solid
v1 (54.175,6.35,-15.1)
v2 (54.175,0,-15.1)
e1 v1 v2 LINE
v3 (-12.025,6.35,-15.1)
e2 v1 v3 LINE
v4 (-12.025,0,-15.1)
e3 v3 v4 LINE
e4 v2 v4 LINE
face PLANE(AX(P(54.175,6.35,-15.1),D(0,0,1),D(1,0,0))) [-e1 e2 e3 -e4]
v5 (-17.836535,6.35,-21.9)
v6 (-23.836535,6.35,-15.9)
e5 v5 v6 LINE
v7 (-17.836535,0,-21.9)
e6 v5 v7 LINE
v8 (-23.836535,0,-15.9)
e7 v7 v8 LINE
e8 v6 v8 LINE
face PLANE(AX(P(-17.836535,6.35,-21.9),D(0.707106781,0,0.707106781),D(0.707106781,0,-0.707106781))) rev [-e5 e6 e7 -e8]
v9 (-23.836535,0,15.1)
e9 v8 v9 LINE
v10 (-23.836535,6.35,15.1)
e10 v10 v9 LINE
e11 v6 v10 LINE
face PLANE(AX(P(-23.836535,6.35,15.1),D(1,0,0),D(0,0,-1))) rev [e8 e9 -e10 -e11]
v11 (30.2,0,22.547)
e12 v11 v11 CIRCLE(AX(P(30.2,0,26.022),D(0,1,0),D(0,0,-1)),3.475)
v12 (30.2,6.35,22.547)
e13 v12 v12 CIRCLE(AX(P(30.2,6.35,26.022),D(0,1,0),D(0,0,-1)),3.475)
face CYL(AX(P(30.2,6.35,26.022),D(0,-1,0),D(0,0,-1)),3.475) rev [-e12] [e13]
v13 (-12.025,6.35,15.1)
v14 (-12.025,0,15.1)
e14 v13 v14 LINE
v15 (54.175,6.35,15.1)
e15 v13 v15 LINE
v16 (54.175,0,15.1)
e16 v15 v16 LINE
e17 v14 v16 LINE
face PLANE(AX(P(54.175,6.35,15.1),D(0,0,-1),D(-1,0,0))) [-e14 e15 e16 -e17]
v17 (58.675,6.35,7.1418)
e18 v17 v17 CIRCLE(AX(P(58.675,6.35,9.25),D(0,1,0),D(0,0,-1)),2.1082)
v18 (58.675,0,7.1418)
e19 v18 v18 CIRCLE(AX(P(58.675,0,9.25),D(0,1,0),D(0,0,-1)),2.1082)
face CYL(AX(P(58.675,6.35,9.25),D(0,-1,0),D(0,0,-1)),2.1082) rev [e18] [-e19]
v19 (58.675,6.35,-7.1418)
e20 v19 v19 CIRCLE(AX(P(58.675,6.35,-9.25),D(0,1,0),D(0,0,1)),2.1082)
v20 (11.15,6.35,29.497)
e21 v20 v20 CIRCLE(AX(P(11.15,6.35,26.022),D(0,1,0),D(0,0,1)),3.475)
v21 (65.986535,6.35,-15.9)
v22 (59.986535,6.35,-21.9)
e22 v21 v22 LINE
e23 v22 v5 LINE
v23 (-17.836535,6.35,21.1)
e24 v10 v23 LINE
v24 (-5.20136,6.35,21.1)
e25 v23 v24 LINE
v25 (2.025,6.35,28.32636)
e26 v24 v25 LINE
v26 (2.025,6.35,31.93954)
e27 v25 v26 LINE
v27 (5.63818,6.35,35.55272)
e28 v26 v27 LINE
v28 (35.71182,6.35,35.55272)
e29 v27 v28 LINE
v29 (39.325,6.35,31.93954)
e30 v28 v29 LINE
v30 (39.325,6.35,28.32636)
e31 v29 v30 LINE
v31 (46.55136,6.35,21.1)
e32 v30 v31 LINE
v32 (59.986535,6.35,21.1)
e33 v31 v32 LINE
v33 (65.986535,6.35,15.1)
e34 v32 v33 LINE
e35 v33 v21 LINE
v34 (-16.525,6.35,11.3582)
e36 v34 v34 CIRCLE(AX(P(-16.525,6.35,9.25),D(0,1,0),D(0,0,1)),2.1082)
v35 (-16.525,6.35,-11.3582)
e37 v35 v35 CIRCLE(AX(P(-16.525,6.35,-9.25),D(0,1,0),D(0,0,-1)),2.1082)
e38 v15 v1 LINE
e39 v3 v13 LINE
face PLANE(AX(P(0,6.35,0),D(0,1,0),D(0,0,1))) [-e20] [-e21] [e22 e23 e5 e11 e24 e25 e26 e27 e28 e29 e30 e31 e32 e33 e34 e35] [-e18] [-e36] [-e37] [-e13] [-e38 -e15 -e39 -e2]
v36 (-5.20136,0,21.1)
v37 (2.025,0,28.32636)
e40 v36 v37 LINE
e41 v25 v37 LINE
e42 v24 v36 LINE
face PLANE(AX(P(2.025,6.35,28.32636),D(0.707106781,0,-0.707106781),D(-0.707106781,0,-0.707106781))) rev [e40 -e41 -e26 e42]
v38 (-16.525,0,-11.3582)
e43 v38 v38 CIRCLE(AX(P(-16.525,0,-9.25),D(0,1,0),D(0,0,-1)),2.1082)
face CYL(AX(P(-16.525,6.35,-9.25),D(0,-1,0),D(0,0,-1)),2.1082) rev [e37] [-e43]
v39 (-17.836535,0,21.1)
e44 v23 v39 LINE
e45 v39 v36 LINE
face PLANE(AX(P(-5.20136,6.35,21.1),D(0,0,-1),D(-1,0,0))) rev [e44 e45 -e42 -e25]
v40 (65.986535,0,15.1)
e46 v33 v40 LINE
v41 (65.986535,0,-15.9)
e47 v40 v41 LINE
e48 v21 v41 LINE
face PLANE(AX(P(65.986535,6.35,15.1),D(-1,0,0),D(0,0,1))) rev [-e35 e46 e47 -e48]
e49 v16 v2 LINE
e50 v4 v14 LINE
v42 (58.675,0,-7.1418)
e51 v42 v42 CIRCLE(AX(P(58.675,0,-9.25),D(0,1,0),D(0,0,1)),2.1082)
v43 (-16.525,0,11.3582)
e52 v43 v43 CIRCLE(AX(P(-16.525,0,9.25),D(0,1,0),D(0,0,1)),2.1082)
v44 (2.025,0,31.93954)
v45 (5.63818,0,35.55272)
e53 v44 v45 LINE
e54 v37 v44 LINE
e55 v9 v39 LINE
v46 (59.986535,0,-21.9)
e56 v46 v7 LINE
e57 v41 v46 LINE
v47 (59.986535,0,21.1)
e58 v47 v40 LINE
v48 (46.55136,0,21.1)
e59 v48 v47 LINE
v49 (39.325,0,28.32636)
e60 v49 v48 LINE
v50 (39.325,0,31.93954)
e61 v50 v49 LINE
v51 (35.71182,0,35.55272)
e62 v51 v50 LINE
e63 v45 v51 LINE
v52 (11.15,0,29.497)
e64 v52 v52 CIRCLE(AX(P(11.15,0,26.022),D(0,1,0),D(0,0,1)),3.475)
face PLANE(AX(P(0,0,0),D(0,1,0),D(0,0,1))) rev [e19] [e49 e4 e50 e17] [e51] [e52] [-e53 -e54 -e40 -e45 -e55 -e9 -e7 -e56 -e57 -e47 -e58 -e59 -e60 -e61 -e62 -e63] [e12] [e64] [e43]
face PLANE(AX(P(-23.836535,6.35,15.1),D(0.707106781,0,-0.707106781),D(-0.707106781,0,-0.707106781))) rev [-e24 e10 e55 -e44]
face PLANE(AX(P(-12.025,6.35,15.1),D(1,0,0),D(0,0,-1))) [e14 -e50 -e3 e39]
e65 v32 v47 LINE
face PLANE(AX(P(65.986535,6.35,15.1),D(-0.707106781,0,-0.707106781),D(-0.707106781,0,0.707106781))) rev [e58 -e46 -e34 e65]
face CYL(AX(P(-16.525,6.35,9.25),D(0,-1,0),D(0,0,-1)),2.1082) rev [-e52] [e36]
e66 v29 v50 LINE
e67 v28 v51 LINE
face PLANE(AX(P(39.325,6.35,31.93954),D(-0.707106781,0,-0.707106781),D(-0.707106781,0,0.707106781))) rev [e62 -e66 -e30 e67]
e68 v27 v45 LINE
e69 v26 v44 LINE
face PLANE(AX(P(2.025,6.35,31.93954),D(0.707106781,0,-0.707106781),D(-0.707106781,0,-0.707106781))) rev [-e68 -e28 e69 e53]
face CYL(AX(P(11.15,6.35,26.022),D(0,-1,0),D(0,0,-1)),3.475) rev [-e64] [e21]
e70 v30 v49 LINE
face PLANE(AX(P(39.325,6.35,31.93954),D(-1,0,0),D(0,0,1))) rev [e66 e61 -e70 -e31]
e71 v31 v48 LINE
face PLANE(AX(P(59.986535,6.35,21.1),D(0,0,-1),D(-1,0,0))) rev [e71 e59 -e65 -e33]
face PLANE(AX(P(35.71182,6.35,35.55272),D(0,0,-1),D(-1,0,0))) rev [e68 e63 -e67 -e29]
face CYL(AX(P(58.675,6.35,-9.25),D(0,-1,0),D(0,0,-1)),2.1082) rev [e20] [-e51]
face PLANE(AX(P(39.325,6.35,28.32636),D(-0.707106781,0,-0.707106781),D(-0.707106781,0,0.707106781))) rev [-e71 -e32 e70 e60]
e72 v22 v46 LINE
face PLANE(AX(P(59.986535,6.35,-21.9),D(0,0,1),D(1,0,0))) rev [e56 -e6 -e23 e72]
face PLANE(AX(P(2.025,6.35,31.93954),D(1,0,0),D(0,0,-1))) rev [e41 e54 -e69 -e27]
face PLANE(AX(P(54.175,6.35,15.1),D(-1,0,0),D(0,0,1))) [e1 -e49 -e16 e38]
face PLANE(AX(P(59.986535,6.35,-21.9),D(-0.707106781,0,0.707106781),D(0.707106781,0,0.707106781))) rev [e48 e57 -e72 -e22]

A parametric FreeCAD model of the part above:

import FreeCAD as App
import Part
import Sketcher

V = App.Vector
Q = App.Units.Quantity


def add_polygon(sketch, points):
    """Adds a closed chain of lines whose ends are joined by coincident constraints."""
    first, n = sketch.GeometryCount, len(points)
    for a, b in zip(points, points[1:] + points[:1]):
        sketch.addGeometry(Part.LineSegment(App.Vector(*a, 0), App.Vector(*b, 0)), False)
    for i in range(n):
        sketch.addConstraint(Sketcher.Constraint("Coincident", first + i, 2, first + (i + 1) % n, 1))

doc = App.newDocument("Part")
body = doc.addObject("PartDesign::Body", "Body")

sketch1 = body.newObject("Sketcher::SketchObject", "Sketch")
sketch1.AttachmentSupport = (doc.getObject("XZ_Plane"), [""])
sketch1.MapMode = "FlatFace"
add_polygon(sketch1, [(60, -21.9), (-17.8, -21.9), (-23.8, -15.9), (-23.8, 15.1), (-17.8, 21.1), (-5.2, 21.1), (2, 28.3), (2, 31.9), (5.6, 35.6), (35.7, 35.6), (39.3, 31.9), (39.3, 28.3), (46.6, 21.1), (60, 21.1), (66, 15.1), (66, -15.9)])
sketch1.addGeometry(Part.Circle(V(11.2, 26, 0), V(0, 0, 1), 3.5), False)
sketch1.addGeometry(Part.Circle(V(-16.5, 9.2, 0), V(0, 0, 1), 2.1), False)
sketch1.addGeometry(Part.Circle(V(30.2, 26, 0), V(0, 0, 1), 3.5), False)
sketch1.addGeometry(Part.Circle(V(58.7, 9.2, 0), V(0, 0, 1), 2.1), False)
sketch1.addGeometry(Part.Circle(V(-16.5, -9.2, 0), V(0, 0, 1), 2.1), False)
add_polygon(sketch1, [(54.2, 15.1), (-12, 15.1), (-12, -15.1), (54.2, -15.1)])
sketch1.addGeometry(Part.Circle(V(58.7, -9.2, 0), V(0, 0, 1), 2.1), False)
sketch1.addConstraint([
    Sketcher.Constraint("Horizontal", 0),
    Sketcher.Constraint("Vertical", 2),
    Sketcher.Constraint("Horizontal", 4),
    Sketcher.Constraint("Vertical", 6),
    Sketcher.Constraint("Horizontal", 8),
    Sketcher.Constraint("Vertical", 10),
    Sketcher.Constraint("Horizontal", 12),
    Sketcher.Constraint("Vertical", 14),
    Sketcher.Constraint("Horizontal", 21),
    Sketcher.Constraint("Vertical", 22),
    Sketcher.Constraint("Horizontal", 23),
    Sketcher.Constraint("Vertical", 24),
    Sketcher.Constraint("Equal", 16, 18),
    Sketcher.Constraint("Equal", 17, 19),
    Sketcher.Constraint("Equal", 19, 20),
    Sketcher.Constraint("Equal", 20, 25),
    Sketcher.Constraint("Symmetric", 17, 3, 20, 3, -1),
    Sketcher.Constraint("Symmetric", 19, 3, 25, 3, -1),
    Sketcher.Constraint("Perpendicular", 1, 3),
    Sketcher.Constraint("Parallel", 3, 5),
    Sketcher.Constraint("Parallel", 5, 7),
    Sketcher.Constraint("Perpendicular", 7, 9),
    Sketcher.Constraint("Parallel", 9, 11),
    Sketcher.Constraint("Parallel", 11, 13),
    Sketcher.Constraint("Perpendicular", 13, 15),
    Sketcher.Constraint("Horizontal", 16, 3, 18, 3),
    Sketcher.Constraint("Horizontal", 17, 3, 19, 3),
    Sketcher.Constraint("Horizontal", 6, 2, 9, 2),
    Sketcher.Constraint("Horizontal", 5, 2, 10, 2),
    Sketcher.Constraint("Horizontal", 4, 2, 11, 2),
    Sketcher.Constraint("Horizontal", 2, 2, 13, 2),
    Sketcher.Constraint("Horizontal", 1, 2, 14, 2),
    Sketcher.Constraint("Horizontal", 13, 2, 21, 2),
    Sketcher.Constraint("Vertical", 0, 2, 3, 2),
    Sketcher.Constraint("Vertical", 12, 2, 15, 2),
    Sketcher.Constraint("Diameter", 16, Q("6.95 mm")),
    Sketcher.Constraint("DistanceY", 2, 1, 2, 2, Q("31 mm")),
    Sketcher.Constraint("DistanceX", 21, 2, 21, 1, Q("66.2 mm")),
    Sketcher.Constraint("DistanceY", 22, 2, 22, 1, Q("30.2 mm")),
    Sketcher.Constraint("DistanceX", 1, 2, 0, 2, Q("6 mm")),
    Sketcher.Constraint("Diameter", 17, Q("4.2164 mm")),
    Sketcher.Constraint("DistanceX", -1, 1, 18, 3, Q("30.2 mm")),
    Sketcher.Constraint("DistanceY", 0, 2, -1, 1, Q("21.9 mm")),
    Sketcher.Constraint("DistanceX", 17, 3, 19, 3, Q("75.2 mm")),
    Sketcher.Constraint("DistanceY", 20, 3, 17, 3, Q("18.5 mm")),
    Sketcher.Constraint("DistanceX", 17, 3, 21, 2, Q("4.5 mm")),
    Sketcher.Constraint("DistanceX", -1, 1, 16, 3, Q("11.15 mm")),
    Sketcher.Constraint("DistanceX", 17, 3, 5, 2, Q("18.55 mm")),
    Sketcher.Constraint("DistanceX", 9, 2, 19, 3, Q("19.35 mm")),
    Sketcher.Constraint("DistanceY", -1, 1, 16, 3, Q("26.022 mm")),
    Sketcher.Constraint("DistanceX", 17, 3, -1, 1, Q("16.525 mm")),
    Sketcher.Constraint("DistanceX", 0, 2, 0, 1, Q("77.82307 mm")),
    Sketcher.Constraint("DistanceX", 8, 1, 8, 2, Q("30.07364 mm")),
    Sketcher.Constraint("DistanceY", 6, 1, 6, 2, Q("3.61318 mm")),
    Sketcher.Constraint("DistanceX", 4, 1, 4, 2, Q("12.635175 mm")),
    Sketcher.Constraint("DistanceX", 12, 1, 12, 2, Q("13.435175 mm")),
])
pad1 = body.newObject("PartDesign::Pad", "Pad")
pad1.Profile = sketch1
pad1.Length = 6.35
pad1.Reversed = True

doc.recompute()
